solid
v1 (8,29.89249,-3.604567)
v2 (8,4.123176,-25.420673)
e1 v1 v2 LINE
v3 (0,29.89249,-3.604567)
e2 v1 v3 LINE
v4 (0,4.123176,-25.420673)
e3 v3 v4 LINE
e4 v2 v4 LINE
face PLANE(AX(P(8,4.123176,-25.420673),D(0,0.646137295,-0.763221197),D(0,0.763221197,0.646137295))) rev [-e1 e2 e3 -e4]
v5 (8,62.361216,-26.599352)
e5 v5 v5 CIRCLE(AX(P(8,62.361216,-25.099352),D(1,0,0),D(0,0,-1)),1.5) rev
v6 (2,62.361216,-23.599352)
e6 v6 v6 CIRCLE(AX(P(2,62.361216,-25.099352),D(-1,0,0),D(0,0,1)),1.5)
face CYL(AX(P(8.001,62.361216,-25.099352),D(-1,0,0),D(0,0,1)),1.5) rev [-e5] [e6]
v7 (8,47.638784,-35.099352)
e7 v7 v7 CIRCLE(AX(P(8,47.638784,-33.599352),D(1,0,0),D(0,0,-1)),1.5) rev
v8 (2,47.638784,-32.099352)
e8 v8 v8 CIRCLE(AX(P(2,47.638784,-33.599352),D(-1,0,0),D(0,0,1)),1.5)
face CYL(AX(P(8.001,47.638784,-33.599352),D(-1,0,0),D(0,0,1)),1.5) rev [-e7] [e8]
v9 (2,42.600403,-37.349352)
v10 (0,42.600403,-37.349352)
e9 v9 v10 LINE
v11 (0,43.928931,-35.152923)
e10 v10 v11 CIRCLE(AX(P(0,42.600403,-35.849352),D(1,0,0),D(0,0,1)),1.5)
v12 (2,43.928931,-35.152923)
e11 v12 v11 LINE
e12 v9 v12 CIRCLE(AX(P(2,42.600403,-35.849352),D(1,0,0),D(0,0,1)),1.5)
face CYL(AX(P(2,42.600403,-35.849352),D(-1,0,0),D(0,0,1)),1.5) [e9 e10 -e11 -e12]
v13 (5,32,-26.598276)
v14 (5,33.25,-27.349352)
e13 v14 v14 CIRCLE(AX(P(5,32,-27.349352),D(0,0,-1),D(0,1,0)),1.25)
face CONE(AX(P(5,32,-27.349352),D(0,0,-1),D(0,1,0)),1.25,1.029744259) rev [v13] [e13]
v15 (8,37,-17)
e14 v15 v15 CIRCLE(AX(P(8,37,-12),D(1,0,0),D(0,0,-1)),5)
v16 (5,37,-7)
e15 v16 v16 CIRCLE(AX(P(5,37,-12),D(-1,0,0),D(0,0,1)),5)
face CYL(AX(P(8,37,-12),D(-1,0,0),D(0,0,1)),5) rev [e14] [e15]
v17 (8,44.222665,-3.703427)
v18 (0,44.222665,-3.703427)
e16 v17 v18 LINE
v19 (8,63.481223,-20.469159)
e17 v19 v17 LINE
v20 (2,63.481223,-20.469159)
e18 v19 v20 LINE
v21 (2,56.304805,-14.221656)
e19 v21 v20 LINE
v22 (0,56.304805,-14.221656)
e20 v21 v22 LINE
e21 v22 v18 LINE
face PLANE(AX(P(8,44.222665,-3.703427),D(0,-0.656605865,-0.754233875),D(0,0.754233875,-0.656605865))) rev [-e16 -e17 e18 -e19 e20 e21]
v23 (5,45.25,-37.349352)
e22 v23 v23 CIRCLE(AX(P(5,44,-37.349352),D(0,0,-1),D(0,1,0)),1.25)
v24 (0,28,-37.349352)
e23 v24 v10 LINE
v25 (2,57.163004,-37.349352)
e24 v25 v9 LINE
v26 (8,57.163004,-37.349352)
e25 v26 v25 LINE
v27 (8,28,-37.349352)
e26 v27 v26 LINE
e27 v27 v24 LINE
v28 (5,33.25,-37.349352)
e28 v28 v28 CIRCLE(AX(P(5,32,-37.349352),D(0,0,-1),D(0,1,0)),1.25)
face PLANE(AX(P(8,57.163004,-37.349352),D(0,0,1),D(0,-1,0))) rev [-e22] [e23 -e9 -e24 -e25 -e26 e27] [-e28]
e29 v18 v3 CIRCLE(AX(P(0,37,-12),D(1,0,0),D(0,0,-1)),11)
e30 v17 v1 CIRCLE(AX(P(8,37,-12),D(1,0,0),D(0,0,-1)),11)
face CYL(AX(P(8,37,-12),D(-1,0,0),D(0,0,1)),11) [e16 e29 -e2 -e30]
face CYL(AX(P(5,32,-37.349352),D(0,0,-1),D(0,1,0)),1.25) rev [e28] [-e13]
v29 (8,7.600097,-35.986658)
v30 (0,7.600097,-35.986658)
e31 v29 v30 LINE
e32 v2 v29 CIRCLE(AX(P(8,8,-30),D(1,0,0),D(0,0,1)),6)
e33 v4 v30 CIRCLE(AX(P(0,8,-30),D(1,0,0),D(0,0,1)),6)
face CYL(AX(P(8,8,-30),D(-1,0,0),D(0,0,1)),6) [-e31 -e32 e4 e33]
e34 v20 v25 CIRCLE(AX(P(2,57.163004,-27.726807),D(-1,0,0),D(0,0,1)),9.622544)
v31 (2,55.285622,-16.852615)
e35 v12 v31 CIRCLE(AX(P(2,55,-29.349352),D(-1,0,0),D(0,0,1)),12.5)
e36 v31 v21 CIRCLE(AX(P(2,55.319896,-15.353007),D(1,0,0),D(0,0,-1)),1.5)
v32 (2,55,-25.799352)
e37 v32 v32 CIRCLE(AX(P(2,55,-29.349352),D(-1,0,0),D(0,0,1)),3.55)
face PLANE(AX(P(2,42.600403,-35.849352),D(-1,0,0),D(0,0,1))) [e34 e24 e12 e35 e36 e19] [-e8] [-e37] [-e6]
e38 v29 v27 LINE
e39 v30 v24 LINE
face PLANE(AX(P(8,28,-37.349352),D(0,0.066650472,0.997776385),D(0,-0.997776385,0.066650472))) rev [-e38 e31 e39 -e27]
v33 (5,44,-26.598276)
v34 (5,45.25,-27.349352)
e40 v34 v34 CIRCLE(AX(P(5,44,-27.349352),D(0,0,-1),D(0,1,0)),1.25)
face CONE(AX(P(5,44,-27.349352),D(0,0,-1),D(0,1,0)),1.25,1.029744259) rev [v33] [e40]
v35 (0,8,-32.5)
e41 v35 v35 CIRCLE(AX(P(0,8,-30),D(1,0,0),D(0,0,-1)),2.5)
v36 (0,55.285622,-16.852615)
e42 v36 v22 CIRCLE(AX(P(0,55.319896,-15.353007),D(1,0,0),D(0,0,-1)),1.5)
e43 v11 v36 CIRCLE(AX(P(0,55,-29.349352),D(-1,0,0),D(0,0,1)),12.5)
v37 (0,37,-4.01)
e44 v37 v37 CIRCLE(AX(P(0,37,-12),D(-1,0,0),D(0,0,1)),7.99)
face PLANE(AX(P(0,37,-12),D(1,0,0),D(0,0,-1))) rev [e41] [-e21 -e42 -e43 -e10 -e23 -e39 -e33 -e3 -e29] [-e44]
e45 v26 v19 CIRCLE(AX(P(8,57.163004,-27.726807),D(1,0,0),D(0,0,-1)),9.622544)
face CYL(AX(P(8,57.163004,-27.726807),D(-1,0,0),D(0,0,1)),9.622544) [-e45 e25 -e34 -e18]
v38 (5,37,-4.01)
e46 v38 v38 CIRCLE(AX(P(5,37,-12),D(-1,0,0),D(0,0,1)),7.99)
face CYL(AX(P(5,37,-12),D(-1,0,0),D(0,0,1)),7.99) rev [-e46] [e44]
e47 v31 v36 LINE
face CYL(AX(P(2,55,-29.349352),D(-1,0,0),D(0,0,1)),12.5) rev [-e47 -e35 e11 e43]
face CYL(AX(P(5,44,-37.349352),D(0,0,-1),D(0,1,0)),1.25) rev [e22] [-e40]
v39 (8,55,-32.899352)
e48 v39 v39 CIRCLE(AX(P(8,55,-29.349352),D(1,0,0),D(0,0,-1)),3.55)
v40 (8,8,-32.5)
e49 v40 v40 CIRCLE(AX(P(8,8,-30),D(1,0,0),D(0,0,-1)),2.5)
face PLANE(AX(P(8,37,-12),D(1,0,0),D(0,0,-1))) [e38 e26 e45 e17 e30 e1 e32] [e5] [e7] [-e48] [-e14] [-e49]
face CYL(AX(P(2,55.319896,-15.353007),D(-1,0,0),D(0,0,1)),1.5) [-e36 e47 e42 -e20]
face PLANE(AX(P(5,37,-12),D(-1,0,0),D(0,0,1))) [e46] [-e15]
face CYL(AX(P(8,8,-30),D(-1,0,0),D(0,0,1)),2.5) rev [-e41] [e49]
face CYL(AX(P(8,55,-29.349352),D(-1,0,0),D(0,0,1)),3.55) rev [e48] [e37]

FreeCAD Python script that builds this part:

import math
import FreeCAD as App
import Part
import Sketcher
Q = App.Units.Quantity

doc = App.newDocument("Part")
body = doc.addObject("PartDesign::Body", "Body")

# Sketch on YZ plane
sketch1 = body.newObject("Sketcher::SketchObject", "Sketch")
sketch1.AttachmentSupport = (doc.getObject("YZ_Plane"), [""])
sketch1.MapMode = "FlatFace"
sketch1.addGeometry(Part.LineSegment(App.Vector(63.5, -20.5, 0), App.Vector(44.2, -3.7, 0)), False)
sketch1.addGeometry(Part.ArcOfCircle(Part.Circle(App.Vector(37, -12, 0), App.Vector(0, 0, 1), 11), math.radians(49), math.radians(130)), False)
sketch1.addGeometry(Part.LineSegment(App.Vector(29.9, -3.6, 0), App.Vector(4.1, -25.4, 0)), False)
sketch1.addGeometry(Part.ArcOfCircle(Part.Circle(App.Vector(8, -30, 0), App.Vector(0, 0, 1), 6), math.radians(130), math.radians(266)), False)
sketch1.addGeometry(Part.LineSegment(App.Vector(7.6, -36, 0), App.Vector(28, -37.3, 0)), False)
sketch1.addGeometry(Part.LineSegment(App.Vector(28, -37.3, 0), App.Vector(57.2, -37.3, 0)), False)
sketch1.addGeometry(Part.ArcOfCircle(Part.Circle(App.Vector(57.2, -27.7, 0), App.Vector(0, 0, 1), 9.6), math.radians(-90), math.radians(49)), False)
sketch1.addGeometry(Part.Circle(App.Vector(8, -30, 0), App.Vector(0, 0, 1), 2.5), False)
sketch1.addGeometry(Part.Circle(App.Vector(55, -29.3, 0), App.Vector(0, 0, 1), 3.5), False)
sketch1.addGeometry(Part.Circle(App.Vector(37, -12, 0), App.Vector(0, 0, 1), 5), False)
sketch1.addConstraint(Sketcher.Constraint("Tangent", 0, 2, 1, 1))
sketch1.addConstraint(Sketcher.Constraint("Tangent", 1, 2, 2, 1))
sketch1.addConstraint(Sketcher.Constraint("Tangent", 2, 2, 3, 1))
sketch1.addConstraint(Sketcher.Constraint("Tangent", 3, 2, 4, 1))
sketch1.addConstraint(Sketcher.Constraint("Coincident", 4, 2, 5, 1))
sketch1.addConstraint(Sketcher.Constraint("Tangent", 5, 2, 6, 1))
sketch1.addConstraint(Sketcher.Constraint("Tangent", 6, 2, 0, 1))
sketch1.addConstraint(Sketcher.Constraint("Horizontal", 5))
sketch1.addConstraint(Sketcher.Constraint("Coincident", 7, 3, 3, 3))
sketch1.addConstraint(Sketcher.Constraint("Coincident", 9, 3, 1, 3))
sketch1.addConstraint(Sketcher.Constraint("Diameter", 7, Q("5 mm")))
sketch1.addConstraint(Sketcher.Constraint("Diameter", 9, Q("10 mm")))
sketch1.addConstraint(Sketcher.Constraint("Radius", 1, Q("11 mm")))
sketch1.addConstraint(Sketcher.Constraint("Radius", 3, Q("6 mm")))
sketch1.addConstraint(Sketcher.Constraint("Diameter", 8, Q("7.1 mm")))
sketch1.addConstraint(Sketcher.Constraint("DistanceX", -1, 1, 1, 3, Q("37 mm")))
sketch1.addConstraint(Sketcher.Constraint("DistanceY", 1, 3, -1, 1, Q("12 mm")))
sketch1.addConstraint(Sketcher.Constraint("DistanceX", -1, 1, 3, 3, Q("8 mm")))
sketch1.addConstraint(Sketcher.Constraint("DistanceY", 3, 3, -1, 1, Q("30 mm")))
sketch1.addConstraint(Sketcher.Constraint("DistanceX", -1, 1, 8, 3, Q("55 mm")))
sketch1.addConstraint(Sketcher.Constraint("DistanceX", -1, 1, 4, 2, Q("28 mm")))
sketch1.addConstraint(Sketcher.Constraint("DistanceY", 5, 2, 8, 3, Q("8 mm")))
sketch1.addConstraint(Sketcher.Constraint("Radius", 6, Q("9.622544 mm")))
sketch1.addConstraint(Sketcher.Constraint("DistanceX", 5, 1, 5, 2, Q("29.163004 mm")))
sketch1.addConstraint(Sketcher.Constraint("DistanceY", 8, 3, -1, 1, Q("29.349352 mm")))
pad1 = body.newObject("PartDesign::Pad", "Pad")
pad1.Profile = sketch1
pad1.Length = 8

# Sketch on XY plane
sketch2 = body.newObject("Sketcher::SketchObject", "Sketch001")
sketch2.AttachmentSupport = (doc.getObject("XY_Plane"), [""])
sketch2.MapMode = "FlatFace"
sketch2.AttachmentOffset = App.Placement(App.Vector(0, 0, -37.349352), App.Rotation())
sketch2.addGeometry(Part.Circle(App.Vector(5, 44, 0), App.Vector(0, 0, 1), 1.2), False)
sketch2.addGeometry(Part.Circle(App.Vector(5, 32, 0), App.Vector(0, 0, 1), 1.2), False)
sketch2.addConstraint(Sketcher.Constraint("Equal", 0, 1))
sketch2.addConstraint(Sketcher.Constraint("Vertical", 0, 3, 1, 3))
sketch2.addConstraint(Sketcher.Constraint("Diameter", 0, Q("2.5 mm")))
sketch2.addConstraint(Sketcher.Constraint("DistanceX", -1, 1, 0, 3, Q("5 mm")))
sketch2.addConstraint(Sketcher.Constraint("DistanceY", -1, 1, 0, 3, Q("44 mm")))
sketch2.addConstraint(Sketcher.Constraint("DistanceY", -1, 1, 1, 3, Q("32 mm")))
doc.recompute()
hole = body.newObject("PartDesign::Hole", "Hole")
hole.Profile = sketch2
hole.ThreadType = "None"
hole.Diameter = 2.5
hole.DepthType = "Dimension"
hole.Depth = 10
hole.DrillPoint = "Angled"
hole.DrillPointAngle = 118
hole.Reversed = True

# Sketch on YZ plane
sketch3 = body.newObject("Sketcher::SketchObject", "Sketch002")
sketch3.AttachmentSupport = (doc.getObject("YZ_Plane"), [""])
sketch3.MapMode = "FlatFace"
sketch3.addGeometry(Part.Circle(App.Vector(37, -12, 0), App.Vector(0, 0, 1), 8), False)
sketch3.addConstraint(Sketcher.Constraint("Diameter", 0, Q("15.98 mm")))
sketch3.addConstraint(Sketcher.Constraint("DistanceX", -1, 1, 0, 3, Q("37 mm")))
sketch3.addConstraint(Sketcher.Constraint("DistanceY", 0, 3, -1, 1, Q("12 mm")))
pocket1 = body.newObject("PartDesign::Pocket", "Pocket")
pocket1.Profile = sketch3
pocket1.Length = 5
pocket1.Reversed = True

# Sketch on YZ plane
sketch4 = body.newObject("Sketcher::SketchObject", "Sketch003")
sketch4.AttachmentSupport = (doc.getObject("YZ_Plane"), [""])
sketch4.MapMode = "FlatFace"
sketch4.addGeometry(Part.LineSegment(App.Vector(72.6, -37.3, 0), App.Vector(42.6, -37.3, 0)), False)
sketch4.addGeometry(Part.ArcOfCircle(Part.Circle(App.Vector(42.6, -35.8, 0), App.Vector(0, 0, 1), 1.5), math.radians(-90), math.radians(28)), False)
sketch4.addGeometry(Part.ArcOfCircle(Part.Circle(App.Vector(55, -29.3, 0), App.Vector(0, 0, 1), 12.5), math.radians(89), math.radians(208)), False)
sketch4.addGeometry(Part.ArcOfCircle(Part.Circle(App.Vector(55.3, -15.4, 0), App.Vector(0, 0, 1), 1.5), math.radians(-91), math.radians(49)), False)
sketch4.addGeometry(Part.LineSegment(App.Vector(56.3, -14.2, 0), App.Vector(72.6, -14.2, 0)), False)
sketch4.addGeometry(Part.LineSegment(App.Vector(72.6, -14.2, 0), App.Vector(72.6, -37.3, 0)), False)
sketch4.addConstraint(Sketcher.Constraint("Tangent", 0, 2, 1, 1))
sketch4.addConstraint(Sketcher.Constraint("Tangent", 1, 2, 2, 2))
sketch4.addConstraint(Sketcher.Constraint("Tangent", 2, 1, 3, 1))
sketch4.addConstraint(Sketcher.Constraint("Coincident", 3, 2, 4, 1))
sketch4.addConstraint(Sketcher.Constraint("Coincident", 4, 2, 5, 1))
sketch4.addConstraint(Sketcher.Constraint("Coincident", 5, 2, 0, 1))
sketch4.addConstraint(Sketcher.Constraint("Horizontal", 0))
sketch4.addConstraint(Sketcher.Constraint("Horizontal", 4))
sketch4.addConstraint(Sketcher.Constraint("Vertical", 5))
sketch4.addConstraint(Sketcher.Constraint("Equal", 1, 3))
sketch4.addConstraint(Sketcher.Constraint("Radius", 1, Q("1.5 mm")))
sketch4.addConstraint(Sketcher.Constraint("Radius", 2, Q("12.5 mm")))
sketch4.addConstraint(Sketcher.Constraint("DistanceX", -1, 1, 2, 3, Q("55 mm")))
sketch4.addConstraint(Sketcher.Constraint("DistanceY", 0, 2, 2, 3, Q("8 mm")))
sketch4.addConstraint(Sketcher.Constraint("DistanceX", 4, 1, 4, 2, Q("16.34185 mm")))
sketch4.addConstraint(Sketcher.Constraint("DistanceX", 1, 3, 3, 2, Q("13.704402 mm")))
sketch4.addConstraint(Sketcher.Constraint("DistanceY", 5, 2, 5, 1, Q("23.127696 mm")))
sketch4.addConstraint(Sketcher.Constraint("DistanceY", 1, 3, -1, 1, Q("35.849352 mm")))
pocket2 = body.newObject("PartDesign::Pocket", "Pocket001")
pocket2.Profile = sketch4
pocket2.Length = 2
pocket2.Reversed = True

# Sketch on YZ plane
sketch5 = body.newObject("Sketcher::SketchObject", "Sketch004")
sketch5.AttachmentSupport = (doc.getObject("YZ_Plane"), [""])
sketch5.MapMode = "FlatFace"
sketch5.AttachmentOffset = App.Placement(App.Vector(0, 0, 2), App.Rotation())
sketch5.addGeometry(Part.Circle(App.Vector(47.6, -33.6, 0), App.Vector(0, 0, 1), 1.5), False)
sketch5.addConstraint(Sketcher.Constraint("Diameter", 0, Q("3 mm")))
sketch5.addConstraint(Sketcher.Constraint("DistanceY", 0, 3, -1, 1, Q("33.599352 mm")))
sketch5.addConstraint(Sketcher.Constraint("DistanceX", -1, 1, 0, 3, Q("47.638784 mm")))
pocket3 = body.newObject("PartDesign::Pocket", "Pocket002")
pocket3.Profile = sketch5
pocket3.Type = "UpToFirst"
pocket3.Reversed = True

# Sketch on YZ plane
sketch6 = body.newObject("Sketcher::SketchObject", "Sketch005")
sketch6.AttachmentSupport = (doc.getObject("YZ_Plane"), [""])
sketch6.MapMode = "FlatFace"
sketch6.AttachmentOffset = App.Placement(App.Vector(0, 0, 2), App.Rotation())
sketch6.addGeometry(Part.Circle(App.Vector(62.4, -25.1, 0), App.Vector(0, 0, 1), 1.5), False)
sketch6.addConstraint(Sketcher.Constraint("Diameter", 0, Q("3 mm")))
sketch6.addConstraint(Sketcher.Constraint("DistanceY", 0, 3, -1, 1, Q("25.099352 mm")))
sketch6.addConstraint(Sketcher.Constraint("DistanceX", -1, 1, 0, 3, Q("62.361216 mm")))
pocket4 = body.newObject("PartDesign::Pocket", "Pocket003")
pocket4.Profile = sketch6
pocket4.Type = "UpToFirst"
pocket4.Reversed = True

doc.recompute()
